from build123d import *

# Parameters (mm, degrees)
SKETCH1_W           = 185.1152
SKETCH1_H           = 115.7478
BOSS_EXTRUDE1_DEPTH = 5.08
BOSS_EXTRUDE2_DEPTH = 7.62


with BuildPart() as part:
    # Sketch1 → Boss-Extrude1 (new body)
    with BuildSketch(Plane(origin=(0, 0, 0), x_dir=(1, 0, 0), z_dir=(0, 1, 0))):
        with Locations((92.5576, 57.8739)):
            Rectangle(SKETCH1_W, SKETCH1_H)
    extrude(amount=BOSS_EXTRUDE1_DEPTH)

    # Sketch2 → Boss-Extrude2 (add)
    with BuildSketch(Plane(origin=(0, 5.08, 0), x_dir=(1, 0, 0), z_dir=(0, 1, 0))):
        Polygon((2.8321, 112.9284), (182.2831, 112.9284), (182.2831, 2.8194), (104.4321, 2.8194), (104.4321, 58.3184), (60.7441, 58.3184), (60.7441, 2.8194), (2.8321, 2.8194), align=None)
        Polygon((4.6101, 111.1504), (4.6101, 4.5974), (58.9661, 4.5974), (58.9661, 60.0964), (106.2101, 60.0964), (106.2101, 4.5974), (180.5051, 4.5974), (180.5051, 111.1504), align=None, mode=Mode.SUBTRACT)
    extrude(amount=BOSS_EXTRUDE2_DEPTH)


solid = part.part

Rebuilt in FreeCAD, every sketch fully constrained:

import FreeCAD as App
import Part
import Sketcher
Q = App.Units.Quantity

doc = App.newDocument("Part")
body = doc.addObject("PartDesign::Body", "Body")

# Sketch on XZ plane
sketch1 = body.newObject("Sketcher::SketchObject", "Sketch")
sketch1.AttachmentSupport = (doc.getObject("XZ_Plane"), [""])
sketch1.MapMode = "FlatFace"
sketch1.addGeometry([
    Part.LineSegment(App.Vector(0, -115.7478, 0), App.Vector(0, 0, 0)),
    Part.LineSegment(App.Vector(0, 0, 0), App.Vector(185.1152, 0, 0)),
    Part.LineSegment(App.Vector(185.1152, 0, 0), App.Vector(185.1152, -115.7478, 0)),
    Part.LineSegment(App.Vector(185.1152, -115.7478, 0), App.Vector(0, -115.7478, 0)),
], False)
sketch1.addConstraint([
    Sketcher.Constraint("Coincident", 0, 2, 1, 1),
    Sketcher.Constraint("Coincident", 1, 2, 2, 1),
    Sketcher.Constraint("Coincident", 2, 2, 3, 1),
    Sketcher.Constraint("Coincident", 3, 2, 0, 1),
    Sketcher.Constraint("Vertical", 0),
    Sketcher.Constraint("Horizontal", 1),
    Sketcher.Constraint("Vertical", 2),
    Sketcher.Constraint("Horizontal", 3),
    Sketcher.Constraint("Coincident", 0, 2, -1, 1),
    Sketcher.Constraint("DistanceX", 1, 1, 1, 2, Q("7.288 in")),
    Sketcher.Constraint("DistanceY", 0, 1, 0, 2, Q("4.557 in")),
])
pad1 = body.newObject("PartDesign::Pad", "Pad")
pad1.Profile = sketch1
pad1.Length = Q("0.2 in")
pad1.Reversed = True

# Sketch on XZ plane
sketch2 = body.newObject("Sketcher::SketchObject", "Sketch001")
sketch2.AttachmentSupport = (doc.getObject("XZ_Plane"), [""])
sketch2.MapMode = "FlatFace"
sketch2.AttachmentOffset = App.Placement(App.Vector(0, 0, -0.2 * 25.4), App.Rotation())
sketch2.addGeometry([
    Part.LineSegment(App.Vector(182.2831, -112.9284, 0), App.Vector(2.8321, -112.9284, 0)),  # 0
    Part.LineSegment(App.Vector(2.8321, -112.9284, 0), App.Vector(2.8321, -2.8194, 0)),  # 1
    Part.LineSegment(App.Vector(2.8321, -2.8194, 0), App.Vector(60.7441, -2.8194, 0)),  # 2
    Part.LineSegment(App.Vector(60.7441, -2.8194, 0), App.Vector(60.7441, -58.3184, 0)),  # 3
    Part.LineSegment(App.Vector(60.7441, -58.3184, 0), App.Vector(104.4321, -58.3184, 0)),  # 4
    Part.LineSegment(App.Vector(104.4321, -58.3184, 0), App.Vector(104.4321, -2.8194, 0)),  # 5
    Part.LineSegment(App.Vector(104.4321, -2.8194, 0), App.Vector(182.2831, -2.8194, 0)),  # 6
    Part.LineSegment(App.Vector(182.2831, -2.8194, 0), App.Vector(182.2831, -112.9284, 0)),  # 7
    Part.LineSegment(App.Vector(4.6101, -111.1504, 0), App.Vector(180.5051, -111.1504, 0)),  # 8
    Part.LineSegment(App.Vector(180.5051, -111.1504, 0), App.Vector(180.5051, -4.5974, 0)),  # 9
    Part.LineSegment(App.Vector(180.5051, -4.5974, 0), App.Vector(106.2101, -4.5974, 0)),  # 10
    Part.LineSegment(App.Vector(106.2101, -4.5974, 0), App.Vector(106.2101, -60.0964, 0)),  # 11
    Part.LineSegment(App.Vector(106.2101, -60.0964, 0), App.Vector(58.9661, -60.0964, 0)),  # 12
    Part.LineSegment(App.Vector(58.9661, -60.0964, 0), App.Vector(58.9661, -4.5974, 0)),  # 13
    Part.LineSegment(App.Vector(58.9661, -4.5974, 0), App.Vector(4.6101, -4.5974, 0)),  # 14
    Part.LineSegment(App.Vector(4.6101, -4.5974, 0), App.Vector(4.6101, -111.1504, 0)),  # 15
], False)
sketch2.addConstraint([
    Sketcher.Constraint("Coincident", 0, 2, 1, 1),
    Sketcher.Constraint("Coincident", 1, 2, 2, 1),
    Sketcher.Constraint("Coincident", 2, 2, 3, 1),
    Sketcher.Constraint("Coincident", 3, 2, 4, 1),
    Sketcher.Constraint("Coincident", 4, 2, 5, 1),
    Sketcher.Constraint("Coincident", 5, 2, 6, 1),
    Sketcher.Constraint("Coincident", 6, 2, 7, 1),
    Sketcher.Constraint("Coincident", 7, 2, 0, 1),
    Sketcher.Constraint("Coincident", 8, 2, 9, 1),
    Sketcher.Constraint("Coincident", 9, 2, 10, 1),
    Sketcher.Constraint("Coincident", 10, 2, 11, 1),
    Sketcher.Constraint("Coincident", 11, 2, 12, 1),
    Sketcher.Constraint("Coincident", 12, 2, 13, 1),
    Sketcher.Constraint("Coincident", 13, 2, 14, 1),
    Sketcher.Constraint("Coincident", 14, 2, 15, 1),
    Sketcher.Constraint("Coincident", 15, 2, 8, 1),
    Sketcher.Constraint("Horizontal", 0),
    Sketcher.Constraint("Vertical", 1),
    Sketcher.Constraint("Horizontal", 2),
    Sketcher.Constraint("Vertical", 3),
    Sketcher.Constraint("Horizontal", 4),
    Sketcher.Constraint("Vertical", 5),
    Sketcher.Constraint("Horizontal", 6),
    Sketcher.Constraint("Vertical", 7),
    Sketcher.Constraint("Horizontal", 8),
    Sketcher.Constraint("Vertical", 9),
    Sketcher.Constraint("Horizontal", 10),
    Sketcher.Constraint("Vertical", 11),
    Sketcher.Constraint("Horizontal", 12),
    Sketcher.Constraint("Vertical", 13),
    Sketcher.Constraint("Horizontal", 14),
    Sketcher.Constraint("Vertical", 15),
    Sketcher.Constraint("Horizontal", 2, 2, 5, 2),
    Sketcher.Constraint("Horizontal", 10, 2, 13, 2),
    Sketcher.Constraint("Equal", 5, 11),
    Sketcher.Constraint("DistanceX", 0, 2, 4, 2, Q("4 in")),
    Sketcher.Constraint("DistanceX", 2, 1, 2, 2, Q("2.28 in")),
    Sketcher.Constraint("DistanceX", 12, 2, 12, 1, Q("1.86 in")),
    Sketcher.Constraint("DistanceX", 14, 2, 14, 1, Q("2.14 in")),
    Sketcher.Constraint("DistanceX", 0, 2, 0, 1, Q("7.065 in")),
    Sketcher.Constraint("DistanceX", 8, 1, 8, 2, Q("6.925 in")),
    Sketcher.Constraint("DistanceY", 1, 1, 1, 2, Q("4.335 in")),
    Sketcher.Constraint("DistanceY", 3, 2, 3, 1, Q("2.185 in")),
    Sketcher.Constraint("DistanceY", 9, 1, 9, 2, Q("4.195 in")),
    Sketcher.Constraint("DistanceX", 8, 2, 7, 2, Q("0.07 in")),
    Sketcher.Constraint("DistanceY", 7, 2, 8, 2, Q("0.07 in")),
    Sketcher.Constraint("DistanceY", 0, 2, -1, 1, Q("4.446 in")),
    Sketcher.Constraint("DistanceX", -1, 1, 0, 2, Q("0.1115 in")),
])
pad2 = body.newObject("PartDesign::Pad", "Pad001")
pad2.Profile = sketch2
pad2.Length = Q("0.3 in")
pad2.Reversed = True

doc.recompute()
